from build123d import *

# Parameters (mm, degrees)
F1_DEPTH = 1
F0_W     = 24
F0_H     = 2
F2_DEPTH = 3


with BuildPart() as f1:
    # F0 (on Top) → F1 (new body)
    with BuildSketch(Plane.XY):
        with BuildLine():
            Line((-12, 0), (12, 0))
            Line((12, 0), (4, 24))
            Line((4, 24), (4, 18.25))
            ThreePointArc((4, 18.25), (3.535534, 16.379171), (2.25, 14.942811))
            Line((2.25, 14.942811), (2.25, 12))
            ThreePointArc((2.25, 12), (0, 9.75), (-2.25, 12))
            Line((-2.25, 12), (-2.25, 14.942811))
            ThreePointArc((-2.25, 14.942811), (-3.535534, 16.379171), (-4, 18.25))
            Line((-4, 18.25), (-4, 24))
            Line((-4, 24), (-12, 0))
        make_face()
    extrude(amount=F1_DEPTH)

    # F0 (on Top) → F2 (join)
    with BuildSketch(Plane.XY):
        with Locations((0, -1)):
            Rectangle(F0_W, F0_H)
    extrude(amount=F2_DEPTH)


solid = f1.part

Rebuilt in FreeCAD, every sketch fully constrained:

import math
import FreeCAD as App
import Part
import Sketcher
Q = App.Units.Quantity

doc = App.newDocument("Part")
params = doc.addObject("Spreadsheet::Sheet", "Params")
for row, (alias, value) in enumerate([
    ("sketch1_width", "24 mm"),
    ("sketch1_radius", "2.25 mm"),
    ("sketch1_height", "5.75 mm"),
    ("pad1_length", "1 mm"),
    ("sketch2_width", "24 mm"),
    ("sketch2_height", "2 mm"),
    ("pad2_length", "3 mm"),
], start=1):
    params.set(f"A{row}", alias)
    params.set(f"B{row}", "=" + value)
    params.setAlias(f"B{row}", alias)

body = doc.addObject("PartDesign::Body", "Body")

sketch1 = body.newObject("Sketcher::SketchObject", "Sketch")
sketch1.AttachmentSupport = (doc.getObject("XY_Plane"), [""])
sketch1.MapMode = "FlatFace"
sketch1.addGeometry([
    Part.LineSegment(App.Vector(-12, 0, 0), App.Vector(12, 0, 0)),
    Part.LineSegment(App.Vector(12, 0, 0), App.Vector(4, 24, 0)),
    Part.LineSegment(App.Vector(4, 24, 0), App.Vector(4, 18.25, 0)),
    Part.ArcOfCircle(Part.Circle(App.Vector(0.000002, 18.249999, 0), App.Vector(0, 0, 1), 3.999998), math.radians(-55.77115), math.radians(0.000015)),
    Part.LineSegment(App.Vector(2.25, 14.942811, 0), App.Vector(2.25, 12, 0)),
    Part.ArcOfCircle(Part.Circle(App.Vector(0, 12, 0), App.Vector(0, 0, 1), 2.25), math.radians(180), math.radians(360)),
    Part.LineSegment(App.Vector(-2.25, 12, 0), App.Vector(-2.25, 14.942811, 0)),
    Part.ArcOfCircle(Part.Circle(App.Vector(-0.000002, 18.249999, 0), App.Vector(0, 0, 1), 3.999998), math.radians(179.999985), math.radians(235.77115)),
    Part.LineSegment(App.Vector(-4, 18.25, 0), App.Vector(-4, 24, 0)),
    Part.LineSegment(App.Vector(-4, 24, 0), App.Vector(-12, 0, 0)),
], False)
sketch1.addConstraint([
    Sketcher.Constraint("Coincident", 0, 2, 1, 1),
    Sketcher.Constraint("Coincident", 1, 2, 2, 1),
    Sketcher.Constraint("Tangent", 2, 2, 3, 2),
    Sketcher.Constraint("Coincident", 3, 1, 4, 1),
    Sketcher.Constraint("Tangent", 4, 2, 5, 2),
    Sketcher.Constraint("Tangent", 5, 1, 6, 1),
    Sketcher.Constraint("Coincident", 6, 2, 7, 2),
    Sketcher.Constraint("Tangent", 7, 1, 8, 1),
    Sketcher.Constraint("Coincident", 8, 2, 9, 1),
    Sketcher.Constraint("Coincident", 9, 2, 0, 1),
    Sketcher.Constraint("Horizontal", 0),
    Sketcher.Constraint("Vertical", 2),
    Sketcher.Constraint("Vertical", 4),
    Sketcher.Constraint("Vertical", 6),
    Sketcher.Constraint("Vertical", 8),
    Sketcher.Constraint("Coincident", 7, 3, 3, 3),
    Sketcher.Constraint("Equal", 3, 7),
    Sketcher.Constraint("Symmetric", 0, 2, 9, 2, -1, 1),
    Sketcher.Constraint("Symmetric", 3, 1, 6, 2, -2),
    Sketcher.Constraint("Horizontal", 1, 2, 8, 2),
    Sketcher.Constraint("DistanceX", 0, 1, 0, 2, Q("24 mm")),
    Sketcher.Constraint("Radius", 5, Q("2.25 mm")),
    Sketcher.Constraint("DistanceY", -1, 1, 5, 3, Q("12 mm")),
    Sketcher.Constraint("DistanceX", -1, 1, 1, 2, Q("4 mm")),
    Sketcher.Constraint("DistanceY", -1, 1, 1, 2, Q("24 mm")),
    Sketcher.Constraint("DistanceY", 2, 2, 2, 1, Q("5.75 mm")),
])
sketch1.setExpression("Constraints[20]", "Params.sketch1_width")
sketch1.setExpression("Constraints[21]", "Params.sketch1_radius")
sketch1.setExpression("Constraints[25]", "Params.sketch1_height")
pad1 = body.newObject("PartDesign::Pad", "Pad")
pad1.Profile = sketch1
pad1.setExpression("Length", "Params.pad1_length")

sketch2 = body.newObject("Sketcher::SketchObject", "Sketch001")
sketch2.AttachmentSupport = (doc.getObject("XY_Plane"), [""])
sketch2.MapMode = "FlatFace"
sketch2.addGeometry([
    Part.LineSegment(App.Vector(-12, 0, 0), App.Vector(-12, -2, 0)),
    Part.LineSegment(App.Vector(-12, -2, 0), App.Vector(12, -2, 0)),
    Part.LineSegment(App.Vector(12, -2, 0), App.Vector(12, 0, 0)),
    Part.LineSegment(App.Vector(12, 0, 0), App.Vector(-12, 0, 0)),
], False)
sketch2.addConstraint([
    Sketcher.Constraint("Coincident", 0, 2, 1, 1),
    Sketcher.Constraint("Coincident", 1, 2, 2, 1),
    Sketcher.Constraint("Coincident", 2, 2, 3, 1),
    Sketcher.Constraint("Coincident", 3, 2, 0, 1),
    Sketcher.Constraint("Vertical", 0),
    Sketcher.Constraint("Horizontal", 1),
    Sketcher.Constraint("Vertical", 2),
    Sketcher.Constraint("Horizontal", 3),
    Sketcher.Constraint("Symmetric", 2, 2, 3, 2, -1, 1),
    Sketcher.Constraint("DistanceX", 1, 1, 1, 2, Q("24 mm")),
    Sketcher.Constraint("DistanceY", 0, 2, 0, 1, Q("2 mm")),
])
sketch2.setExpression("Constraints[9]", "Params.sketch2_width")
sketch2.setExpression("Constraints[10]", "Params.sketch2_height")
pad2 = body.newObject("PartDesign::Pad", "Pad001")
pad2.Profile = sketch2
pad2.setExpression("Length", "Params.pad2_length")

doc.recompute()
